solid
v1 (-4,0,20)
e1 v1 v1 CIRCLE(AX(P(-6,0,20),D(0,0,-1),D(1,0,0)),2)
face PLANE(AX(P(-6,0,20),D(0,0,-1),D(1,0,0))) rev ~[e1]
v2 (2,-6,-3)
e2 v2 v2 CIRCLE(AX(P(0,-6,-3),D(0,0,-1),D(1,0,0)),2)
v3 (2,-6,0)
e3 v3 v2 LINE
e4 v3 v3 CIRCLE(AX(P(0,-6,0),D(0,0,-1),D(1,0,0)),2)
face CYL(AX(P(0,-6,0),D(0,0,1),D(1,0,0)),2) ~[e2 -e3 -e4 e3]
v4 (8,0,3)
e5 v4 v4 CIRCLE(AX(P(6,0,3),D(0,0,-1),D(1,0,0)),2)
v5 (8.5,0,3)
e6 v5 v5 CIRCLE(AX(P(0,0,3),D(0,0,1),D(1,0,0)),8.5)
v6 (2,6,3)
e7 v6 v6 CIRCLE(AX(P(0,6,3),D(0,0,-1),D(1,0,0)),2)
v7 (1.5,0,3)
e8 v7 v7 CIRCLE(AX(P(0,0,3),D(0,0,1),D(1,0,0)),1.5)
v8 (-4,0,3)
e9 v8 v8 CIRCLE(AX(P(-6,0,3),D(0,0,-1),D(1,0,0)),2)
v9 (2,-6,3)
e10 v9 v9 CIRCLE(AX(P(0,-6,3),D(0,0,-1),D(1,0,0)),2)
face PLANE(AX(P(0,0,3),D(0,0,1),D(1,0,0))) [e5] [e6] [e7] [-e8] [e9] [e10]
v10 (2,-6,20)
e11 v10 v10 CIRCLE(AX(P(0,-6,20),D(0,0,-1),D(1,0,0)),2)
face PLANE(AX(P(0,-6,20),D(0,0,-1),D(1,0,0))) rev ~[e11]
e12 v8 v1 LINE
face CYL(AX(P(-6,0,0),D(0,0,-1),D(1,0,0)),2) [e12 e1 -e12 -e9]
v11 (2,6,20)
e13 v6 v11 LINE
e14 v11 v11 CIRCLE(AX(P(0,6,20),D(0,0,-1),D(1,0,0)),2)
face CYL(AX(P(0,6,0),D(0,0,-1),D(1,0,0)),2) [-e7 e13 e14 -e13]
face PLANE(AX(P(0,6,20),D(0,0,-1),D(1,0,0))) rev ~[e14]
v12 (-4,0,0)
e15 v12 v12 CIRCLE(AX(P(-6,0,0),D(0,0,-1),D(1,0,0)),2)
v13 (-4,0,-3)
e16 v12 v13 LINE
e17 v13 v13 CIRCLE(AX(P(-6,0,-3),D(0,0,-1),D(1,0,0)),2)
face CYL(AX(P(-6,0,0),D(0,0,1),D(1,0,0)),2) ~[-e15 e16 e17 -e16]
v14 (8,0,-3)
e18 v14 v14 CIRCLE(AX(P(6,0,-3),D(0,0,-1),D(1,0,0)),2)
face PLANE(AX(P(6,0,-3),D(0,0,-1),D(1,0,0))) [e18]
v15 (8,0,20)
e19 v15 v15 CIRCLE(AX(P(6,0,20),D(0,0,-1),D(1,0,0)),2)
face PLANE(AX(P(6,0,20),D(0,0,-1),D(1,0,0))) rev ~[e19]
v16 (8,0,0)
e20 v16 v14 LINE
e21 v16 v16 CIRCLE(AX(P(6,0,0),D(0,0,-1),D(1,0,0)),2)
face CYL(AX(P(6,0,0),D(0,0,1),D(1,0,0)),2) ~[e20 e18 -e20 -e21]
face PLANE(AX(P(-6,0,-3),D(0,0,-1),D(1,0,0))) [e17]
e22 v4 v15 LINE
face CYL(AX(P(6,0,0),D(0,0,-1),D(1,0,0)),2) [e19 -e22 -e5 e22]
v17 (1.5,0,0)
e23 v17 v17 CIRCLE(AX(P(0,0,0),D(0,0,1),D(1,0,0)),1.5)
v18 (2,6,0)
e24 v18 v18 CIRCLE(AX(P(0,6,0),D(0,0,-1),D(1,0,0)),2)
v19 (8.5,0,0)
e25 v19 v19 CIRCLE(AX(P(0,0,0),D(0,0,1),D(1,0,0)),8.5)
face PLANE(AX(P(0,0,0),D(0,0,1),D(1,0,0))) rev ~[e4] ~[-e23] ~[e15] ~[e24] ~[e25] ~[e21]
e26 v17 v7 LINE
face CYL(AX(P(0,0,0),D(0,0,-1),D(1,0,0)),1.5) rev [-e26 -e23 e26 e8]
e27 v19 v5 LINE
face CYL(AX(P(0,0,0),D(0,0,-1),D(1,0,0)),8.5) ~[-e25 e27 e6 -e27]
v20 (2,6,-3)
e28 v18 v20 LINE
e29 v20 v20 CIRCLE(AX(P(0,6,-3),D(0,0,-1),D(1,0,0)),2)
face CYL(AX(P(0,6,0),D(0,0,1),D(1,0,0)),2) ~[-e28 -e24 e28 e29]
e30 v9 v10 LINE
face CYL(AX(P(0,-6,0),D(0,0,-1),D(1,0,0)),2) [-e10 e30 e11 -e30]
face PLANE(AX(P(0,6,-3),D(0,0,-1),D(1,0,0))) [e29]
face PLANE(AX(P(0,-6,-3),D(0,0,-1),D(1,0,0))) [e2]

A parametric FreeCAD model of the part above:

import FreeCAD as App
import Part
import Sketcher
Q = App.Units.Quantity

doc = App.newDocument("Part")
params = doc.addObject("Spreadsheet::Sheet", "Params")
for row, (alias, value) in enumerate([
    ("sketch1_diameter", "17 mm"),
    ("sketch1_diameter2", "3 mm"),
    ("pad1_length", "3 mm"),
    ("sketch2_diameter", "4 mm"),
    ("pad2_length", "3 mm"),
    ("pad2_length2", "20 mm"),
], start=1):
    params.set(f"A{row}", alias)
    params.set(f"B{row}", "=" + value)
    params.setAlias(f"B{row}", alias)

body = doc.addObject("PartDesign::Body", "Body")

# Sketch on XY plane
sketch1 = doc.addObject("Sketcher::SketchObject", "Sketch")
body.addObject(sketch1)
sketch1.AttachmentSupport = (doc.XY_Plane, [""])
sketch1.MapMode = "FlatFace"
sketch1.addGeometry([
    Part.Circle(App.Vector(0, 0, 0), App.Vector(0, 0, 1), 8.5),
    Part.Circle(App.Vector(0, 0, 0), App.Vector(0, 0, 1), 1.5),
], False)
sketch1.addConstraint([
    Sketcher.Constraint("Coincident", 0, 3, -1, 1),
    Sketcher.Constraint("Coincident", 1, 3, -1, 1),
    Sketcher.Constraint("Diameter", 0, Q("17 mm")),
    Sketcher.Constraint("Diameter", 1, Q("3 mm")),
])
sketch1.setExpression("Constraints[2]", "Params.sketch1_diameter")
sketch1.setExpression("Constraints[3]", "Params.sketch1_diameter2")
pad1 = doc.addObject("PartDesign::Pad", "Pad")
body.addObject(pad1)
pad1.Profile = sketch1
pad1.setExpression("Length", "Params.pad1_length")

# Sketch on XY plane
sketch2 = doc.addObject("Sketcher::SketchObject", "Sketch001")
body.addObject(sketch2)
sketch2.AttachmentSupport = (doc.XY_Plane, [""])
sketch2.MapMode = "FlatFace"
sketch2.addGeometry([
    Part.Circle(App.Vector(0, -6, 0), App.Vector(0, 0, 1), 2),
    Part.Circle(App.Vector(6, 0, 0), App.Vector(0, 0, 1), 2),
    Part.Circle(App.Vector(-6, 0, 0), App.Vector(0, 0, 1), 2),
    Part.Circle(App.Vector(0, 6, 0), App.Vector(0, 0, 1), 2),
], False)
sketch2.addConstraint([
    Sketcher.Constraint("Equal", 0, 1),
    Sketcher.Constraint("Equal", 1, 2),
    Sketcher.Constraint("Equal", 2, 3),
    Sketcher.Constraint("Symmetric", 1, 3, 2, 3, -1, 1),
    Sketcher.Constraint("Symmetric", 0, 3, 3, 3, -1, 1),
    Sketcher.Constraint("PointOnObject", 0, 3, -2),
    Sketcher.Constraint("PointOnObject", 1, 3, -1),
    Sketcher.Constraint("Diameter", 0, Q("4 mm")),
    Sketcher.Constraint("DistanceY", 0, 3, -1, 1, Q("6 mm")),
    Sketcher.Constraint("DistanceX", -1, 1, 1, 3, Q("6 mm")),
])
sketch2.setExpression("Constraints[7]", "Params.sketch2_diameter")
pad2 = doc.addObject("PartDesign::Pad", "Pad001")
body.addObject(pad2)
pad2.Profile = sketch2
pad2.Type = "TwoLengths"
pad2.setExpression("Length", "Params.pad2_length")
pad2.setExpression("Length2", "Params.pad2_length2")
pad2.Reversed = True

doc.recompute()
